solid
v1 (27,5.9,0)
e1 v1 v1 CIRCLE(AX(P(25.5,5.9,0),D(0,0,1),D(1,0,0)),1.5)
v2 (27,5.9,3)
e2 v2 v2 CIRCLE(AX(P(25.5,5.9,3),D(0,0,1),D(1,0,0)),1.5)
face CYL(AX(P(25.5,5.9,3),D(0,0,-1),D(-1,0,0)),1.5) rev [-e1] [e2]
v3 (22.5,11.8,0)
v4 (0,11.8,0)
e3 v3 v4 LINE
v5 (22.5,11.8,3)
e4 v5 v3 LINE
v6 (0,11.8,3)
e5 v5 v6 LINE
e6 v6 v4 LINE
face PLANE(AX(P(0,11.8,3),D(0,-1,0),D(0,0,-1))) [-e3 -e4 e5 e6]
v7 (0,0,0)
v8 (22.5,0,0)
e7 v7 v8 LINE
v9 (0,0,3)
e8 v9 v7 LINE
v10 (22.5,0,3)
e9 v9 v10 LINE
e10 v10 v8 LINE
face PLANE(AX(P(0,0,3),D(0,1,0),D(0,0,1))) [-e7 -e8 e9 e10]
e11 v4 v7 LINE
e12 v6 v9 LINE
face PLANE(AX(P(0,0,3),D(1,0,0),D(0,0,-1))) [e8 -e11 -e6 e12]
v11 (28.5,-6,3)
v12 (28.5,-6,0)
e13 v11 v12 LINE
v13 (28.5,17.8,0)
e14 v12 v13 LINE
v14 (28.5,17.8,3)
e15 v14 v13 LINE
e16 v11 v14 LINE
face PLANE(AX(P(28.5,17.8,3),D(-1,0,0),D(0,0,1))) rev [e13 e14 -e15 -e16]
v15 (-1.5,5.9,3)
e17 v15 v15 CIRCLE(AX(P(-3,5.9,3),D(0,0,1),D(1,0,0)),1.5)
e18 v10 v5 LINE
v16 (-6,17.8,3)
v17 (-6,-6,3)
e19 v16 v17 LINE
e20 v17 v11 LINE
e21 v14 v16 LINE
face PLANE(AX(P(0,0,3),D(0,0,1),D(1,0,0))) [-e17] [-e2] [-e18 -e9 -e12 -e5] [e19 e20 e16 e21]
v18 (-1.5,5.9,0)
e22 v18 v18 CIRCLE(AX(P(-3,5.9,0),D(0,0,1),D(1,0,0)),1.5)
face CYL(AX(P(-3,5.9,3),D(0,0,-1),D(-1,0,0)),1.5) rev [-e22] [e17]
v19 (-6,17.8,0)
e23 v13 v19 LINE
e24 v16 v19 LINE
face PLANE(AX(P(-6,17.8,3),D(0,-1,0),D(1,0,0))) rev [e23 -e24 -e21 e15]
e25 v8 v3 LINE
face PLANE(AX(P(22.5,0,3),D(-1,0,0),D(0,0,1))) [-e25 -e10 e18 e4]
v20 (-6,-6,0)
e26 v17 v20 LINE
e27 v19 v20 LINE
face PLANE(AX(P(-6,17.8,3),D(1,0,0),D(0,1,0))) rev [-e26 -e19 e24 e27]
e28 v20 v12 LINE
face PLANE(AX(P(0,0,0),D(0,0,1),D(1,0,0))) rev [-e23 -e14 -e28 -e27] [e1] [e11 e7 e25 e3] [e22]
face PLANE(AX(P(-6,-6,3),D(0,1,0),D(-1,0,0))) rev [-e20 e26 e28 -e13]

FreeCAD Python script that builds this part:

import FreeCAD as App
import Part
import Sketcher

V = App.Vector
Q = App.Units.Quantity

doc = App.newDocument("Part")
body = doc.addObject("PartDesign::Body", "Body")

sketch1 = body.newObject("Sketcher::SketchObject", "Sketch")
sketch1.AttachmentSupport = (doc.getObject("XY_Plane"), [""])
sketch1.MapMode = "FlatFace"
sketch1.addGeometry([
    Part.LineSegment(V(-6, 17.8, 0), V(-6, -6, 0)),
    Part.LineSegment(V(-6, -6, 0), V(28.5, -6, 0)),
    Part.LineSegment(V(28.5, -6, 0), V(28.5, 17.8, 0)),
    Part.LineSegment(V(28.5, 17.8, 0), V(-6, 17.8, 0)),
    Part.Circle(V(-3, 5.9, 0), V(0, 0, 1), 1.5),
    Part.LineSegment(V(22.5, 0, 0), V(0, 0, 0)),
    Part.LineSegment(V(0, 0, 0), V(0, 11.8, 0)),
    Part.LineSegment(V(0, 11.8, 0), V(22.5, 11.8, 0)),
    Part.LineSegment(V(22.5, 11.8, 0), V(22.5, 0, 0)),
    Part.Circle(V(25.5, 5.9, 0), V(0, 0, 1), 1.5),
], False)
sketch1.addConstraint([
    Sketcher.Constraint("Coincident", 0, 2, 1, 1),
    Sketcher.Constraint("Coincident", 1, 2, 2, 1),
    Sketcher.Constraint("Coincident", 2, 2, 3, 1),
    Sketcher.Constraint("Coincident", 3, 2, 0, 1),
    Sketcher.Constraint("Coincident", 5, 2, 6, 1),
    Sketcher.Constraint("Coincident", 6, 2, 7, 1),
    Sketcher.Constraint("Coincident", 7, 2, 8, 1),
    Sketcher.Constraint("Coincident", 8, 2, 5, 1),
    Sketcher.Constraint("Vertical", 0),
    Sketcher.Constraint("Horizontal", 1),
    Sketcher.Constraint("Vertical", 2),
    Sketcher.Constraint("Horizontal", 3),
    Sketcher.Constraint("Horizontal", 5),
    Sketcher.Constraint("Vertical", 6),
    Sketcher.Constraint("Horizontal", 7),
    Sketcher.Constraint("Vertical", 8),
    Sketcher.Constraint("Coincident", 5, 2, -1, 1),
    Sketcher.Constraint("Equal", 4, 9),
    Sketcher.Constraint("Horizontal", 4, 3, 9, 3),
    Sketcher.Constraint("Diameter", 4, Q("3 mm")),
    Sketcher.Constraint("DistanceX", 1, 1, 1, 2, Q("34.5 mm")),
    Sketcher.Constraint("DistanceX", 5, 2, 5, 1, Q("22.5 mm")),
    Sketcher.Constraint("DistanceY", 0, 2, 0, 1, Q("23.8 mm")),
    Sketcher.Constraint("DistanceY", 6, 1, 6, 2, Q("11.8 mm")),
    Sketcher.Constraint("DistanceX", 4, 3, -1, 1, Q("3 mm")),
    Sketcher.Constraint("DistanceX", 0, 2, -1, 1, Q("6 mm")),
    Sketcher.Constraint("DistanceY", 0, 2, -1, 1, Q("6 mm")),
    Sketcher.Constraint("DistanceX", 9, 3, 1, 2, Q("3 mm")),
    Sketcher.Constraint("DistanceY", -1, 1, 4, 3, Q("5.9 mm")),
])
pad1 = body.newObject("PartDesign::Pad", "Pad")
pad1.Profile = sketch1
pad1.Length = 3

doc.recompute()
